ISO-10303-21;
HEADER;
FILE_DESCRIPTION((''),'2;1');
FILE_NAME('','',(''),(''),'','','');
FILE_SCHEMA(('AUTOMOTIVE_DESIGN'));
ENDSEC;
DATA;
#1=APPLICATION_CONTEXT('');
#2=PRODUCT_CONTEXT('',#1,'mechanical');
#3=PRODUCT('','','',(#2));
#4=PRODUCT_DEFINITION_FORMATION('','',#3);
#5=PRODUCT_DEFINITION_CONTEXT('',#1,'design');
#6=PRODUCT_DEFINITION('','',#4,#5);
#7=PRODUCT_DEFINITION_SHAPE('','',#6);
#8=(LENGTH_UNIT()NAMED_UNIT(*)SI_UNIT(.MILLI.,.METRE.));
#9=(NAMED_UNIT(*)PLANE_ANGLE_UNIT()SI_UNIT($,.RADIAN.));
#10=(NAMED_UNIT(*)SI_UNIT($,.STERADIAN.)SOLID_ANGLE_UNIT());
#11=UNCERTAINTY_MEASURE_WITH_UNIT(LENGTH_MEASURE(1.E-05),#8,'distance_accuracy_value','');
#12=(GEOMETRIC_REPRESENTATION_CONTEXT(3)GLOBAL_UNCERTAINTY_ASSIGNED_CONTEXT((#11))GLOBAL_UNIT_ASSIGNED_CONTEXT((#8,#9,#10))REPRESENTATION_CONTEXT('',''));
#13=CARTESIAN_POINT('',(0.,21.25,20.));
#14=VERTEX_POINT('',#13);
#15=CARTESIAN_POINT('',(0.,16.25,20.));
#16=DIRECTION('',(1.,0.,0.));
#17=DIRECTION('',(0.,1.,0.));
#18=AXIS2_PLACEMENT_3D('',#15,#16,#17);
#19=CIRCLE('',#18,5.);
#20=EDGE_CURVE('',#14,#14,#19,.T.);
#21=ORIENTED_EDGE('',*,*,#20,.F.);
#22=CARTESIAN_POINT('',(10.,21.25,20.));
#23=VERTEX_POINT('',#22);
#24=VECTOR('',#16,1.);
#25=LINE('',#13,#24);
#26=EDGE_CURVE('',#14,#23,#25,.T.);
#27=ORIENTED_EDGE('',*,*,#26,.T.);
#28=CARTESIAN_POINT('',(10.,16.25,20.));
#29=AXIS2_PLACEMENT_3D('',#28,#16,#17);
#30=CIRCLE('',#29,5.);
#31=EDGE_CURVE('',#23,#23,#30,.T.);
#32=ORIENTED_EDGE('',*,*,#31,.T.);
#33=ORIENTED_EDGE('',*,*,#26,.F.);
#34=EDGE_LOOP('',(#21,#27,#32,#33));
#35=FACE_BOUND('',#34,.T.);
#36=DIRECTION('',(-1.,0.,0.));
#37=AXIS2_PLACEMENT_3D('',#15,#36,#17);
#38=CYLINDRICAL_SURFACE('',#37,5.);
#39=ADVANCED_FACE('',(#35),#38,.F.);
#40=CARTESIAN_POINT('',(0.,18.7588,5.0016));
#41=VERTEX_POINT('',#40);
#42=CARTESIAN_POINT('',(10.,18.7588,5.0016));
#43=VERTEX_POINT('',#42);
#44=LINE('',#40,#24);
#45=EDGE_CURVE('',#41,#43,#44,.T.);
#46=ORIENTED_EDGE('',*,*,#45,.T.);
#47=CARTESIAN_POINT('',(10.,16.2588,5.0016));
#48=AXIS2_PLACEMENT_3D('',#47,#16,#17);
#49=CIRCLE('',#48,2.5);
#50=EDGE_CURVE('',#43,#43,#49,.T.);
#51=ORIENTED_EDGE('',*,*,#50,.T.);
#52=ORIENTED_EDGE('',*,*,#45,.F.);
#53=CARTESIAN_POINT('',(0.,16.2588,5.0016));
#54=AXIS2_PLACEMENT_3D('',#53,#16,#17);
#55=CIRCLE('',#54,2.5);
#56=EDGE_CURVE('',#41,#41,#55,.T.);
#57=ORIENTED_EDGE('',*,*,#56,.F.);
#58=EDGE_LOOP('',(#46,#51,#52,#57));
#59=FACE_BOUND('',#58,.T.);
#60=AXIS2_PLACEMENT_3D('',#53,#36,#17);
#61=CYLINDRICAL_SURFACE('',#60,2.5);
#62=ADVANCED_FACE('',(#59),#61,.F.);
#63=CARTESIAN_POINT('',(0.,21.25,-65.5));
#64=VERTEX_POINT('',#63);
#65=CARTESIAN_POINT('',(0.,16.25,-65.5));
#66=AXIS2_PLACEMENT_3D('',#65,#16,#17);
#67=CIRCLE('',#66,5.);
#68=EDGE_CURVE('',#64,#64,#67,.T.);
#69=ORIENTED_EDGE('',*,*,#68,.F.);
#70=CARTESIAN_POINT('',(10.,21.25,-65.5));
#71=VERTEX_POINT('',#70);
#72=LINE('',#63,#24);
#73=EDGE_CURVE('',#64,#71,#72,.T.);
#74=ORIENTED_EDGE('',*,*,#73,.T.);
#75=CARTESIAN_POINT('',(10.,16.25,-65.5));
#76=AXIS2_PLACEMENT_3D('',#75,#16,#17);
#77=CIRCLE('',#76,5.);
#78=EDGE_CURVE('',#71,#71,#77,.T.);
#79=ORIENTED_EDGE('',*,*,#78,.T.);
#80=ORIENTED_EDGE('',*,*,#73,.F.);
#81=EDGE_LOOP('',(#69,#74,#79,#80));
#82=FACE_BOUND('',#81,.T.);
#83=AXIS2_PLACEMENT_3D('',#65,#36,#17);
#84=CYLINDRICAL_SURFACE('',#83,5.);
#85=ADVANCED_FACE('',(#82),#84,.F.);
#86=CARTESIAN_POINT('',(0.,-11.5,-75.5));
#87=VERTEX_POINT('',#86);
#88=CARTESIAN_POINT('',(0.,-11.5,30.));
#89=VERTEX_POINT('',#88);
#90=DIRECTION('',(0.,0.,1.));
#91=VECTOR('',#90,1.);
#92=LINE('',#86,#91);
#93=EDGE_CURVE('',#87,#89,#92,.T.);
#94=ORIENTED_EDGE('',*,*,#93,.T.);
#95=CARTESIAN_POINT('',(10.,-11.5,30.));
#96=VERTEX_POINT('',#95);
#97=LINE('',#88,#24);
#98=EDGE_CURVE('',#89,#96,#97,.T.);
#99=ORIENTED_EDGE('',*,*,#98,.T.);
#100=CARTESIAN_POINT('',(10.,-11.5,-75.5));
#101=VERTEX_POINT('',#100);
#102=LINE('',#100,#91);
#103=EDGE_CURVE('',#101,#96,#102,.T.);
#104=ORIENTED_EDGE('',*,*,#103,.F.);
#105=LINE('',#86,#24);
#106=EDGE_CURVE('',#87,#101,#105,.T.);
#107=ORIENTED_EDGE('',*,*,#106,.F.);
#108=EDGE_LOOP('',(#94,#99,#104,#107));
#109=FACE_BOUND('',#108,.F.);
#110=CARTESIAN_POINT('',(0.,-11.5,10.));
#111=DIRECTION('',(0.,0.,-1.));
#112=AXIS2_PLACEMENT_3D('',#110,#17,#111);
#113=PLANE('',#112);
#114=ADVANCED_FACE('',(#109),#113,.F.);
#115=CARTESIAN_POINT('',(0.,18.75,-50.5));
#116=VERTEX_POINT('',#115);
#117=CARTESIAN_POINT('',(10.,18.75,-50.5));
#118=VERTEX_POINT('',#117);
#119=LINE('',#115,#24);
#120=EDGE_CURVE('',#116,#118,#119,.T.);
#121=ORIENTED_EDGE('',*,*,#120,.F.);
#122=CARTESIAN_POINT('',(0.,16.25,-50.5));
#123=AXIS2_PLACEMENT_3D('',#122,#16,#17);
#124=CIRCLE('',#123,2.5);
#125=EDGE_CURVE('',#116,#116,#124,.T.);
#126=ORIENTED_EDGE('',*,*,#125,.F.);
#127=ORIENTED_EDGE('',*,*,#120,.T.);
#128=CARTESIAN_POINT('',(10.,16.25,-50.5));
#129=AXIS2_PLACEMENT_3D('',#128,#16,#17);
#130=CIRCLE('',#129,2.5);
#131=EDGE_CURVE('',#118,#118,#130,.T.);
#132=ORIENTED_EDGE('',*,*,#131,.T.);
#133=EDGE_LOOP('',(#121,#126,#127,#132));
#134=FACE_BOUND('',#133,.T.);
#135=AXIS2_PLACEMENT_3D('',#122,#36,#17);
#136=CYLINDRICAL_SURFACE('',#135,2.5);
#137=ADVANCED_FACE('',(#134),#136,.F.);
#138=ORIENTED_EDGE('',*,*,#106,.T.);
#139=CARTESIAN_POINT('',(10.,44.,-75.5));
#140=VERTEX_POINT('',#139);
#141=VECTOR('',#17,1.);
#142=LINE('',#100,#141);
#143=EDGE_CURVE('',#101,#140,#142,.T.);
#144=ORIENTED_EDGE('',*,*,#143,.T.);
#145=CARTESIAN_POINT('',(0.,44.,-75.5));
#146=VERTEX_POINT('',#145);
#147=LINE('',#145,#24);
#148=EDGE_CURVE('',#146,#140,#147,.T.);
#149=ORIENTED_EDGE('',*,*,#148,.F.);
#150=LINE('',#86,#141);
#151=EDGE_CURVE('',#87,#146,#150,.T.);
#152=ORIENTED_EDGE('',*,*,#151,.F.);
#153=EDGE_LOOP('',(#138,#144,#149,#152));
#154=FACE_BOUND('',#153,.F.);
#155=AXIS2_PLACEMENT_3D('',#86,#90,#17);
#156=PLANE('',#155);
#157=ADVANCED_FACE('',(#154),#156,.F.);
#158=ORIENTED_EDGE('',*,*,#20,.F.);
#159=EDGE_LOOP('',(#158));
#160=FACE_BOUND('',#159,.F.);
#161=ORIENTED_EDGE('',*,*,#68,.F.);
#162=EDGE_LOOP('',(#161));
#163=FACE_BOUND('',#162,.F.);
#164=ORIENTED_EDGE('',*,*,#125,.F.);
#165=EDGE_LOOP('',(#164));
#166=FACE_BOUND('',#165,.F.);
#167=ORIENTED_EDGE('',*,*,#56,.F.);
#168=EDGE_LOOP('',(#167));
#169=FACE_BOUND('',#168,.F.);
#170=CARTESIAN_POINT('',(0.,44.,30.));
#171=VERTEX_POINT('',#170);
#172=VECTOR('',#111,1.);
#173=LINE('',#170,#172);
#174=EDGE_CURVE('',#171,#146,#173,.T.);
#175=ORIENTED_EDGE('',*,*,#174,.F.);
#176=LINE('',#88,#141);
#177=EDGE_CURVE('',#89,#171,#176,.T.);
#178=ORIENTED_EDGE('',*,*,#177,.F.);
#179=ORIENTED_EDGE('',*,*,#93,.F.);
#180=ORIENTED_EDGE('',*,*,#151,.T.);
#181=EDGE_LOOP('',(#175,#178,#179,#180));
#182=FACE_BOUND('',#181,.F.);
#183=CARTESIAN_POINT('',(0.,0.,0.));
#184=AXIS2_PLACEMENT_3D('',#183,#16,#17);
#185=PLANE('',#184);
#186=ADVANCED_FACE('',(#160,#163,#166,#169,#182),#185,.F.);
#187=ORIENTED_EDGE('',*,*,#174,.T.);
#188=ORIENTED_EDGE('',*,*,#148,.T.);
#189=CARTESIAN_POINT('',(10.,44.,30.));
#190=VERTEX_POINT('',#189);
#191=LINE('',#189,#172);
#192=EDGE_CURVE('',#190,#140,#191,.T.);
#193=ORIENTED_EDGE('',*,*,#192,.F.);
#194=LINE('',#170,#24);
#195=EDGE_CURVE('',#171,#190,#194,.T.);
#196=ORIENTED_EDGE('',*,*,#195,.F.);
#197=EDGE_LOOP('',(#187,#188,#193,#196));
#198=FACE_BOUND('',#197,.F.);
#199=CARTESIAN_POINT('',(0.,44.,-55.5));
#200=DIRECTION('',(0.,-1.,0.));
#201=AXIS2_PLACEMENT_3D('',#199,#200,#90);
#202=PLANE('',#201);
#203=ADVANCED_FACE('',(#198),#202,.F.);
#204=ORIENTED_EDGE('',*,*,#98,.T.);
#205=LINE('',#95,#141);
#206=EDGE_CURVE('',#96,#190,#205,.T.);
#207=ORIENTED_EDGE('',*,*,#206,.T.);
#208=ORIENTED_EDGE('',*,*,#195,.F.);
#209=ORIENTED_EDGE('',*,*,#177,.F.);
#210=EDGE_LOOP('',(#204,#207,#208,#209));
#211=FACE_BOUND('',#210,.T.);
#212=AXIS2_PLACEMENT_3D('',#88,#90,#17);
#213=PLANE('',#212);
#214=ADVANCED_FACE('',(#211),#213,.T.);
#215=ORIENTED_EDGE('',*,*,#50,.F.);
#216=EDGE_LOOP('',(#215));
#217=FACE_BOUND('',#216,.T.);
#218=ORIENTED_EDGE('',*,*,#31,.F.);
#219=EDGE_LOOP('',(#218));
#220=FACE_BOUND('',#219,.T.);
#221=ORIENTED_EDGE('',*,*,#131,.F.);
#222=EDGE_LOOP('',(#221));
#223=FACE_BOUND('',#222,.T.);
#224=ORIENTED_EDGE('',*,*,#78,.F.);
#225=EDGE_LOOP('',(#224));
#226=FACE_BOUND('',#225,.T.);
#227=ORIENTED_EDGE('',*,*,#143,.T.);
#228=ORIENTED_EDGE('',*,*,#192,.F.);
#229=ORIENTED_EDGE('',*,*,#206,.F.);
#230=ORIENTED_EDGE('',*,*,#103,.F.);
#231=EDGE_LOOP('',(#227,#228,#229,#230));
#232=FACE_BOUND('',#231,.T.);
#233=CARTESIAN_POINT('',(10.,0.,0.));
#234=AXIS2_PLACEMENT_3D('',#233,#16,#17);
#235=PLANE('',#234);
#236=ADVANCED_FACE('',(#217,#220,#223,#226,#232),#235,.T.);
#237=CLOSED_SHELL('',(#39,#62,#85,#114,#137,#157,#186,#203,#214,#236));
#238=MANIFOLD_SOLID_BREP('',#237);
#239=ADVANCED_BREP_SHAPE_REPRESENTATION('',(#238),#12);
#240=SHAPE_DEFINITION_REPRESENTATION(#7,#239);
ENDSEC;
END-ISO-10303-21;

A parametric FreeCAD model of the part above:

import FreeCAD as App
import Part
import Sketcher

V = App.Vector

doc = App.newDocument("Part")
body = doc.addObject("PartDesign::Body", "Body")

sketch1 = doc.addObject("Sketcher::SketchObject", "Sketch")
body.addObject(sketch1)
sketch1.AttachmentSupport = (doc.YZ_Plane, [""])
sketch1.MapMode = "FlatFace"
sketch1.addGeometry([
    Part.LineSegment(V(44, 30, 0), V(-11.5, 30, 0)),
    Part.LineSegment(V(-11.5, 30, 0), V(-11.5, -75.5, 0)),
    Part.LineSegment(V(-11.5, -75.5, 0), V(44, -75.5, 0)),
    Part.LineSegment(V(44, -75.5, 0), V(44, 30, 0)),
    Part.Circle(V(16.2, -50.5, 0), V(0, 0, 1), 2.5),
    Part.Circle(V(16.3, 5, 0), V(0, 0, 1), 2.5),
    Part.Circle(V(16.2, -65.5, 0), V(0, 0, 1), 5),
    Part.Circle(V(16.2, 20, 0), V(0, 0, 1), 5),
], False)
sketch1.addConstraint([
    Sketcher.Constraint("Coincident", 0, 2, 1, 1),
    Sketcher.Constraint("Coincident", 1, 2, 2, 1),
    Sketcher.Constraint("Coincident", 2, 2, 3, 1),
    Sketcher.Constraint("Coincident", 3, 2, 0, 1),
    Sketcher.Constraint("Horizontal", 0),
    Sketcher.Constraint("Vertical", 1),
    Sketcher.Constraint("Horizontal", 2),
    Sketcher.Constraint("Vertical", 3),
    Sketcher.Constraint("Equal", 4, 5),
    Sketcher.Constraint("Equal", 6, 7),
    Sketcher.Constraint("Vertical", 4, 3, 6, 3),
    Sketcher.Constraint("Vertical", 6, 3, 7, 3),
    Sketcher.Constraint("Diameter", 6, 10.0),
    Sketcher.Constraint("Diameter", 4, 5.0),
    Sketcher.Constraint("DistanceY", -1, 1, 7, 3, 20.0),
    Sketcher.Constraint("DistanceY", 7, 3, 0, 2, 10.0),
    Sketcher.Constraint("DistanceY", 1, 2, 6, 3, 10.0),
    Sketcher.Constraint("DistanceX", 0, 2, 0, 1, 55.5),
    Sketcher.Constraint("DistanceY", 1, 2, 1, 1, 105.5),
    Sketcher.Constraint("DistanceX", -1, 1, 2, 2, 44.0),
    Sketcher.Constraint("DistanceY", 6, 3, 4, 3, 15.0),
    Sketcher.Constraint("DistanceX", -1, 1, 4, 3, 16.25),
    Sketcher.Constraint("DistanceX", -1, 1, 5, 3, 16.2588),
    Sketcher.Constraint("DistanceY", -1, 1, 5, 3, 5.0016),
])
pad1 = doc.addObject("PartDesign::Pad", "Pad")
body.addObject(pad1)
pad1.Profile = sketch1
pad1.Length = 10

doc.recompute()
